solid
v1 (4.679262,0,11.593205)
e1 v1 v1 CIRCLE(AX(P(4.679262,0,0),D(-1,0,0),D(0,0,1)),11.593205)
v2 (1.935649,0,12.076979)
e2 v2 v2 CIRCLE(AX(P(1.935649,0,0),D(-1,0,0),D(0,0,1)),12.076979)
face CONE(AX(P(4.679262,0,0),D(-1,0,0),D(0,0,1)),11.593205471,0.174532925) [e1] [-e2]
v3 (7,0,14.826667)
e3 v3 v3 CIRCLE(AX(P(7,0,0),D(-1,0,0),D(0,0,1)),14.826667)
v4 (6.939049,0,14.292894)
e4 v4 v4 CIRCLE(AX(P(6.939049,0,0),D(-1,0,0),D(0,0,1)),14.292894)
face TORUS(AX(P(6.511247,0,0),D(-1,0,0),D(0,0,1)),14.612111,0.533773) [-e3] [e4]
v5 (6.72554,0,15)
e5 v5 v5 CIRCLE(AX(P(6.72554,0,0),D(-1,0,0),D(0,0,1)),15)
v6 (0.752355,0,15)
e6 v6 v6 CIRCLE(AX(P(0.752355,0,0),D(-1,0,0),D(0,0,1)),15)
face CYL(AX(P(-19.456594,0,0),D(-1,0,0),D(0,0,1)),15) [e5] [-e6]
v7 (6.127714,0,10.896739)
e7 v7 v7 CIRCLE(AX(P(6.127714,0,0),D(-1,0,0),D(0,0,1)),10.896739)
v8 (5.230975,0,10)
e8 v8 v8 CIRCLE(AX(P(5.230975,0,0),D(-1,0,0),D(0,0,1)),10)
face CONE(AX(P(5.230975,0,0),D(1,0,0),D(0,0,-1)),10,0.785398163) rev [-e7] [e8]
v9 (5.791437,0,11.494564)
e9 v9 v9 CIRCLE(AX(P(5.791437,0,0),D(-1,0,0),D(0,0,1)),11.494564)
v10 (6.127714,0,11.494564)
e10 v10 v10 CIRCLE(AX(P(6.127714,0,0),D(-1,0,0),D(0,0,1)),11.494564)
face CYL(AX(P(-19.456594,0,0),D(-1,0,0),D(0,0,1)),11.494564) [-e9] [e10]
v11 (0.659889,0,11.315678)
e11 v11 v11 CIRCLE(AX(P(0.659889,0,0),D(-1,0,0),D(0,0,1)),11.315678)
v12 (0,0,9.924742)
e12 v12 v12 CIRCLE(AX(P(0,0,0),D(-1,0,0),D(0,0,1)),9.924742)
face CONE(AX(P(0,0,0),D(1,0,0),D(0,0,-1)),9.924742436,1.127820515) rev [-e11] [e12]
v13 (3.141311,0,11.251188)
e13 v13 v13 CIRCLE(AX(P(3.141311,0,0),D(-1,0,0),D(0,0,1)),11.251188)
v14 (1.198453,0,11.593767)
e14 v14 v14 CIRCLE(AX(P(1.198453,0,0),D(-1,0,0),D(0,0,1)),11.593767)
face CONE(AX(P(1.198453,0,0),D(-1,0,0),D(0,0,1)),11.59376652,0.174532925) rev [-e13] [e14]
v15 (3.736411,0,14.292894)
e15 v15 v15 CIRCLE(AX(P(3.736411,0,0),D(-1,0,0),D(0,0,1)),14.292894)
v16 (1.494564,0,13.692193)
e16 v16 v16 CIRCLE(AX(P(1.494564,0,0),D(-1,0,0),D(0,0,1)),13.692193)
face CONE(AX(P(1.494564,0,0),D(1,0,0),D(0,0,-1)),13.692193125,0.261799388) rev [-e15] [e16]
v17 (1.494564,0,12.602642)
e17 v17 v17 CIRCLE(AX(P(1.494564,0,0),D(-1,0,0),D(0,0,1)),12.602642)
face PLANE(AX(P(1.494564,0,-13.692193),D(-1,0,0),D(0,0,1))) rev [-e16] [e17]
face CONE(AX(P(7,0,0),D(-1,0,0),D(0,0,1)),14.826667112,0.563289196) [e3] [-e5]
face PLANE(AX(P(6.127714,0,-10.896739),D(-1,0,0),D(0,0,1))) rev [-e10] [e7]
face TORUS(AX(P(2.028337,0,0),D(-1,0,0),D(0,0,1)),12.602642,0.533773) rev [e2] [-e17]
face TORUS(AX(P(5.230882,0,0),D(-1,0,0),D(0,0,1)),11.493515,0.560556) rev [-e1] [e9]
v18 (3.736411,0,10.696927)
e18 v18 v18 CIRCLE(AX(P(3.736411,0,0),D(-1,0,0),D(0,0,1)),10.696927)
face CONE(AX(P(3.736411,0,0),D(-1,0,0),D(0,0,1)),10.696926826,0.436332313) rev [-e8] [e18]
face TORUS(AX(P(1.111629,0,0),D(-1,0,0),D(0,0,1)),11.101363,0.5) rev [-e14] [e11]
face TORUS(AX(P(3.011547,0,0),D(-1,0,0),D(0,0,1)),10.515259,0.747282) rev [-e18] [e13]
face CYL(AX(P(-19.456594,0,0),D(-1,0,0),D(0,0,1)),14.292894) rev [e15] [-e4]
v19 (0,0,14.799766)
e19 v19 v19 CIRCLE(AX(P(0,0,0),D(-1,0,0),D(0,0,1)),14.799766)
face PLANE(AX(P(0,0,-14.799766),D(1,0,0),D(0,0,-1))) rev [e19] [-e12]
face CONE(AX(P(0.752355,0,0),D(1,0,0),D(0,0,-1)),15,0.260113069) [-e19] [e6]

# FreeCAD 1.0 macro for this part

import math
import FreeCAD as App
import Part
import Sketcher
Q = App.Units.Quantity

doc = App.newDocument("Part")
body = doc.addObject("PartDesign::Body", "Body")

# Sketch on XZ plane
sketch1 = doc.addObject("Sketcher::SketchObject", "Sketch")
body.addObject(sketch1)
sketch1.AttachmentSupport = (doc.XZ_Plane, [""])
sketch1.MapMode = "FlatFace"
sketch1.addGeometry([
    Part.LineSegment(App.Vector(0.75, -15, 0), App.Vector(0, -14.8, 0)),  # 0
    Part.LineSegment(App.Vector(0, -14.8, 0), App.Vector(0, -9.92, 0)),  # 1
    Part.LineSegment(App.Vector(0, -9.92, 0), App.Vector(0.66, -11.32, 0)),  # 2
    Part.ArcOfCircle(Part.Circle(App.Vector(1.11, -11.1, 0), App.Vector(0, 0, 1), 0.5), math.radians(-155), math.radians(-80)),  # 3
    Part.LineSegment(App.Vector(1.2, -11.59, 0), App.Vector(3.14, -11.25, 0)),  # 4
    Part.ArcOfCircle(Part.Circle(App.Vector(3.01, -10.52, 0), App.Vector(0, 0, 1), 0.75), math.radians(-80), math.radians(-14)),  # 5
    Part.LineSegment(App.Vector(3.74, -10.7, 0), App.Vector(5.23, -10, 0)),  # 6
    Part.LineSegment(App.Vector(5.23, -10, 0), App.Vector(6.13, -10.9, 0)),  # 7
    Part.LineSegment(App.Vector(6.13, -10.9, 0), App.Vector(6.13, -11.49, 0)),  # 8
    Part.LineSegment(App.Vector(6.13, -11.49, 0), App.Vector(5.79, -11.49, 0)),  # 9
    Part.ArcOfCircle(Part.Circle(App.Vector(5.23, -11.49, 0), App.Vector(0, 0, 1), 0.56), math.radians(0), math.radians(190)),  # 10
    Part.LineSegment(App.Vector(4.68, -11.59, 0), App.Vector(1.94, -12.08, 0)),  # 11
    Part.ArcOfCircle(Part.Circle(App.Vector(2.03, -12.6, 0), App.Vector(0, 0, 1), 0.53), math.radians(100), math.radians(180)),  # 12
    Part.LineSegment(App.Vector(1.49, -12.6, 0), App.Vector(1.49, -13.69, 0)),  # 13
    Part.LineSegment(App.Vector(1.49, -13.69, 0), App.Vector(3.74, -14.29, 0)),  # 14
    Part.LineSegment(App.Vector(3.74, -14.29, 0), App.Vector(6.94, -14.29, 0)),  # 15
    Part.ArcOfCircle(Part.Circle(App.Vector(6.51, -14.61, 0), App.Vector(0, 0, 1), 0.53), math.radians(-24), math.radians(37)),  # 16
    Part.LineSegment(App.Vector(7, -14.83, 0), App.Vector(6.73, -15, 0)),  # 17
    Part.LineSegment(App.Vector(6.73, -15, 0), App.Vector(0.75, -15, 0)),  # 18
], False)
sketch1.addConstraint([
    Sketcher.Constraint("Coincident", 0, 2, 1, 1),
    Sketcher.Constraint("Coincident", 1, 2, 2, 1),
    Sketcher.Constraint("Tangent", 2, 2, 3, 1),
    Sketcher.Constraint("Tangent", 3, 2, 4, 1),
    Sketcher.Constraint("Tangent", 4, 2, 5, 1),
    Sketcher.Constraint("Coincident", 5, 2, 6, 1),
    Sketcher.Constraint("Coincident", 6, 2, 7, 1),
    Sketcher.Constraint("Coincident", 7, 2, 8, 1),
    Sketcher.Constraint("Coincident", 8, 2, 9, 1),
    Sketcher.Constraint("Coincident", 9, 2, 10, 1),
    Sketcher.Constraint("Coincident", 10, 2, 11, 1),
    Sketcher.Constraint("Tangent", 11, 2, 12, 1),
    Sketcher.Constraint("Tangent", 12, 2, 13, 1),
    Sketcher.Constraint("Coincident", 13, 2, 14, 1),
    Sketcher.Constraint("Coincident", 14, 2, 15, 1),
    Sketcher.Constraint("Coincident", 15, 2, 16, 2),
    Sketcher.Constraint("Coincident", 16, 1, 17, 1),
    Sketcher.Constraint("Coincident", 17, 2, 18, 1),
    Sketcher.Constraint("Coincident", 18, 2, 0, 1),
    Sketcher.Constraint("Vertical", 1),
    Sketcher.Constraint("Vertical", 8),
    Sketcher.Constraint("Horizontal", 9),
    Sketcher.Constraint("Vertical", 13),
    Sketcher.Constraint("Horizontal", 15),
    Sketcher.Constraint("Horizontal", 18),
    Sketcher.Constraint("Equal", 12, 16),
    Sketcher.Constraint("PointOnObject", 0, 2, -2),
    Sketcher.Constraint("Parallel", 4, 11),
    Sketcher.Constraint("Vertical", 5, 2, 14, 2),
    Sketcher.Constraint("Radius", 3, 0.5),
    Sketcher.Constraint("Angle", 4, Q("10 deg")),
    Sketcher.Constraint("Angle", 6, Q("25 deg")),
    Sketcher.Constraint("Angle", 7, Q("-45 deg")),
    Sketcher.Constraint("Angle", 14, Q("-15 deg")),
    Sketcher.Constraint("DistanceY", 6, 2, -1, 1, 10.0),
    Sketcher.Constraint("DistanceX", -1, 1, 16, 1, 7.0),
    Sketcher.Constraint("DistanceY", 17, 2, -1, 1, 15.0),
    Sketcher.Constraint("Radius", 5, 0.747282),
    Sketcher.Constraint("Radius", 10, 0.560556),
    Sketcher.Constraint("Radius", 12, 0.533773),
    Sketcher.Constraint("DistanceX", 15, 1, 15, 2, 3.202638),
    Sketcher.Constraint("DistanceY", 13, 2, 13, 1, 1.089551),
    Sketcher.Constraint("DistanceX", 5, 3, 16, 3, 3.4997),
    Sketcher.Constraint("DistanceY", 12, 3, 1, 2, 2.6779),
    Sketcher.Constraint("DistanceX", 4, 2, 5, 2, 0.5951),
    Sketcher.Constraint("DistanceY", 11, 2, 2, 2, 0.761301),
    Sketcher.Constraint("DistanceY", 14, 2, 13, 2, 0.600701),
    Sketcher.Constraint("Distance", 2, 1.53953),
    Sketcher.Constraint("Distance", 4, 1.97283),
    Sketcher.Constraint("Distance", 6, 1.649069),
    Sketcher.Constraint("Distance", 7, 1.26818),
    Sketcher.Constraint("Distance", 11, 2.785938),
    Sketcher.Constraint("Distance", 17, 0.324612),
    Sketcher.Constraint("DistanceX", 9, 2, 9, 1, 0.336277),
    Sketcher.Constraint("DistanceX", 18, 2, 18, 1, 5.973185),
    Sketcher.Constraint("DistanceY", 1, 1, 1, 2, 4.875024),
    Sketcher.Constraint("DistanceY", 8, 2, 8, 1, 0.597826),
])
revolution = doc.addObject("PartDesign::Revolution", "Revolution")
body.addObject(revolution)
revolution.Profile = sketch1
revolution.ReferenceAxis = (sketch1, ["H_Axis"])
revolution.Angle = 360

doc.recompute()
